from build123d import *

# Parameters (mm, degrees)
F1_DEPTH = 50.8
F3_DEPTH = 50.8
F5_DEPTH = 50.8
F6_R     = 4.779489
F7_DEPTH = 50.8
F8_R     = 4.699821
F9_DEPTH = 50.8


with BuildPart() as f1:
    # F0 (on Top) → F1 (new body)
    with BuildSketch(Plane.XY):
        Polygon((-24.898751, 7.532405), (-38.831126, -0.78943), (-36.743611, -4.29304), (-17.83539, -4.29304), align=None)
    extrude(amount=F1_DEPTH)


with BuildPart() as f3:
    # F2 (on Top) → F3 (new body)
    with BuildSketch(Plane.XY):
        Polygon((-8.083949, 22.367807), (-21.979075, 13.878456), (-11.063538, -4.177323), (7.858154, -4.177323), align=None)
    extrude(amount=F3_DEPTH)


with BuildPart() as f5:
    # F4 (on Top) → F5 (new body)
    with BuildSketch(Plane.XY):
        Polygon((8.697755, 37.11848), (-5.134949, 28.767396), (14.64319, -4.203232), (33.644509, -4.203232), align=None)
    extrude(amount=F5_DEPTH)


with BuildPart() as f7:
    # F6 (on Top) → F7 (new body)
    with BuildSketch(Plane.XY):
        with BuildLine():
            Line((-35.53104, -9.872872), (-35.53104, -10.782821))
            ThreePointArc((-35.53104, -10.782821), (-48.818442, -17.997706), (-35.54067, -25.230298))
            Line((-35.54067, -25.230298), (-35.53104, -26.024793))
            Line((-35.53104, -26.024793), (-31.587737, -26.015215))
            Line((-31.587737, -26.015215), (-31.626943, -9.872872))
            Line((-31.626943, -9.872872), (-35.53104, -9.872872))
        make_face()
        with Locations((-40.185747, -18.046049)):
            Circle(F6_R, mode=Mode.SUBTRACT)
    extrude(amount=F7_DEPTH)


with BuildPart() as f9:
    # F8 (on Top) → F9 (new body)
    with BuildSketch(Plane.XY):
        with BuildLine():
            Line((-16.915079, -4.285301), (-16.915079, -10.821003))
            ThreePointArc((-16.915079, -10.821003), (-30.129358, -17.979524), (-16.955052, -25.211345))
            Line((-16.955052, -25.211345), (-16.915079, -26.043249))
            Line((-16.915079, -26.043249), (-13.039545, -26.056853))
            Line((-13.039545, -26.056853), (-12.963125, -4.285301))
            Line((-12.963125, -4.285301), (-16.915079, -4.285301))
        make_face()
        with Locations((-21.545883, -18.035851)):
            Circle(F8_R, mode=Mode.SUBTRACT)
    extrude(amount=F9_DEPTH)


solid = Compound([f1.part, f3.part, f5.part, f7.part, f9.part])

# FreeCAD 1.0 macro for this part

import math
import FreeCAD as App
import Part
import Sketcher
from FreeCAD import Vector
Q = App.Units.Quantity


def add_polygon(sketch, points):
    """Adds a closed chain of lines whose ends are joined by coincident constraints."""
    first, n = sketch.GeometryCount, len(points)
    for a, b in zip(points, points[1:] + points[:1]):
        sketch.addGeometry(Part.LineSegment(App.Vector(*a, 0), App.Vector(*b, 0)), False)
    for i in range(n):
        sketch.addConstraint(Sketcher.Constraint("Coincident", first + i, 2, first + (i + 1) % n, 1))

doc = App.newDocument("Part")
body = doc.addObject("PartDesign::Body", "Body")

# Sketch on XY plane
sketch1 = body.newObject("Sketcher::SketchObject", "Sketch")
sketch1.AttachmentSupport = (doc.getObject("XY_Plane"), [""])
sketch1.MapMode = "FlatFace"
add_polygon(sketch1, [(-24.9, 7.5), (-38.8, -0.8), (-36.7, -4.3), (-17.8, -4.3)])  # lines 0-3
sketch1.addConstraint(Sketcher.Constraint("Horizontal", 2))
sketch1.addConstraint(Sketcher.Constraint("Perpendicular", 0, 3))
sketch1.addConstraint(Sketcher.Constraint("DistanceX", 2, 1, 2, 2, Q("18.908221 mm")))
sketch1.addConstraint(Sketcher.Constraint("Distance", 3, Q("13.774332 mm")))
sketch1.addConstraint(Sketcher.Constraint("DistanceY", 0, 2, -1, 1, Q("0.78943 mm")))
sketch1.addConstraint(Sketcher.Constraint("DistanceX", 1, 2, -1, 1, Q("36.743611 mm")))
sketch1.addConstraint(Sketcher.Constraint("DistanceY", 1, 2, -1, 1, Q("4.29304 mm")))
sketch1.addConstraint(Sketcher.Constraint("DistanceX", 3, 2, -1, 1, Q("24.898751 mm")))
pad1 = body.newObject("PartDesign::Pad", "Pad")
pad1.Profile = sketch1
pad1.Length = Q("2 in")
body2 = doc.addObject("PartDesign::Body", "Body001")

# Sketch on XY plane
sketch2 = body2.newObject("Sketcher::SketchObject", "Sketch001")
sketch2.AttachmentSupport = (doc.getObject("XY_Plane001"), [""])
sketch2.MapMode = "FlatFace"
add_polygon(sketch2, [(-8, 22), (-22, 14), (-11, -4), (8, -4)])  # lines 0-3
sketch2.addConstraint(Sketcher.Constraint("Horizontal", 2))
sketch2.addConstraint(Sketcher.Constraint("DistanceX", 2, 1, 2, 2, Q("18.921692 mm")))
sketch2.addConstraint(Sketcher.Constraint("Distance", 0, Q("16.283231 mm")))
sketch2.addConstraint(Sketcher.Constraint("Distance", 3, Q("30.964408 mm")))
sketch2.addConstraint(Sketcher.Constraint("DistanceX", 3, 2, -1, 1, Q("8.083949 mm")))
sketch2.addConstraint(Sketcher.Constraint("DistanceY", 1, 2, 0, 2, Q("18.055779 mm")))
sketch2.addConstraint(Sketcher.Constraint("DistanceX", 0, 2, 2, 2, Q("29.837229 mm")))
sketch2.addConstraint(Sketcher.Constraint("DistanceY", -1, 1, 0, 2, Q("13.878456 mm")))
pad2 = body2.newObject("PartDesign::Pad", "Pad001")
pad2.Profile = sketch2
pad2.Length = Q("2 in")
body3 = doc.addObject("PartDesign::Body", "Body002")

# Sketch on XY plane
sketch3 = body3.newObject("Sketcher::SketchObject", "Sketch002")
sketch3.AttachmentSupport = (doc.getObject("XY_Plane002"), [""])
sketch3.MapMode = "FlatFace"
add_polygon(sketch3, [(9, 37), (-5, 29), (15, -4), (34, -4)])  # lines 0-3
sketch3.addConstraint(Sketcher.Constraint("Horizontal", 2))
sketch3.addConstraint(Sketcher.Constraint("Perpendicular", 0, 3))
sketch3.addConstraint(Sketcher.Constraint("DistanceX", 2, 1, 2, 2, Q("19.001319 mm")))
sketch3.addConstraint(Sketcher.Constraint("Distance", 1, Q("38.447849 mm")))
sketch3.addConstraint(Sketcher.Constraint("DistanceX", 0, 2, -1, 1, Q("5.134949 mm")))
sketch3.addConstraint(Sketcher.Constraint("DistanceX", -1, 1, 1, 2, Q("14.64319 mm")))
sketch3.addConstraint(Sketcher.Constraint("DistanceY", -1, 1, 3, 2, Q("37.11848 mm")))
sketch3.addConstraint(Sketcher.Constraint("DistanceY", 1, 2, 3, 2, Q("41.321712 mm")))
pad3 = body3.newObject("PartDesign::Pad", "Pad002")
pad3.Profile = sketch3
pad3.Length = Q("2 in")
body4 = doc.addObject("PartDesign::Body", "Body003")

# Sketch on XY plane
sketch4 = body4.newObject("Sketcher::SketchObject", "Sketch003")
sketch4.AttachmentSupport = (doc.getObject("XY_Plane003"), [""])
sketch4.MapMode = "FlatFace"
sketch4.addGeometry(Part.LineSegment(Vector(-35.5, -9.9, 0), Vector(-35.5, -10.8, 0)), False)
sketch4.addGeometry(Part.ArcOfCircle(Part.Circle(Vector(-40.2, -18, 0), Vector(0, 0, 1), 8.6), math.radians(57), math.radians(303)), False)
sketch4.addGeometry(Part.LineSegment(Vector(-35.5, -25.2, 0), Vector(-35.5, -26, 0)), False)
sketch4.addGeometry(Part.LineSegment(Vector(-35.5, -26, 0), Vector(-31.6, -26, 0)), False)
sketch4.addGeometry(Part.LineSegment(Vector(-31.6, -26, 0), Vector(-31.6, -9.9, 0)), False)
sketch4.addGeometry(Part.LineSegment(Vector(-31.6, -9.9, 0), Vector(-35.5, -9.9, 0)), False)
sketch4.addGeometry(Part.Circle(Vector(-40.2, -18, 0), Vector(0, 0, 1), 4.8), False)
sketch4.addConstraint(Sketcher.Constraint("Coincident", 0, 2, 1, 1))
sketch4.addConstraint(Sketcher.Constraint("Coincident", 1, 2, 2, 1))
sketch4.addConstraint(Sketcher.Constraint("Coincident", 2, 2, 3, 1))
sketch4.addConstraint(Sketcher.Constraint("Coincident", 3, 2, 4, 1))
sketch4.addConstraint(Sketcher.Constraint("Coincident", 4, 2, 5, 1))
sketch4.addConstraint(Sketcher.Constraint("Coincident", 5, 2, 0, 1))
sketch4.addConstraint(Sketcher.Constraint("Vertical", 0))
sketch4.addConstraint(Sketcher.Constraint("Horizontal", 5))
sketch4.addConstraint(Sketcher.Constraint("Perpendicular", 3, 4))
sketch4.addConstraint(Sketcher.Constraint("Vertical", 0, 2, 2, 2))
sketch4.addConstraint(Sketcher.Constraint("Radius", 1, Q("8.605611 mm")))
sketch4.addConstraint(Sketcher.Constraint("Diameter", 6, Q("9.558978 mm")))
sketch4.addConstraint(Sketcher.Constraint("DistanceY", 0, 2, 0, 1, Q("0.909949 mm")))
sketch4.addConstraint(Sketcher.Constraint("DistanceY", 1, 2, -1, 1, Q("25.230298 mm")))
sketch4.addConstraint(Sketcher.Constraint("Distance", 4, Q("16.142391 mm")))
sketch4.addConstraint(Sketcher.Constraint("DistanceX", 5, 2, 5, 1, Q("3.904097 mm")))
sketch4.addConstraint(Sketcher.Constraint("DistanceY", 6, 3, -1, 1, Q("18.046049 mm")))
sketch4.addConstraint(Sketcher.Constraint("DistanceX", 0, 2, -1, 1, Q("35.53104 mm")))
sketch4.addConstraint(Sketcher.Constraint("DistanceY", 0, 2, -1, 1, Q("10.782821 mm")))
sketch4.addConstraint(Sketcher.Constraint("DistanceX", 1, 2, -1, 1, Q("35.54067 mm")))
sketch4.addConstraint(Sketcher.Constraint("DistanceY", 2, 2, 1, 3, Q("8.021351 mm")))
sketch4.addConstraint(Sketcher.Constraint("DistanceX", 6, 3, 3, 2, Q("8.59801 mm")))
pad4 = body4.newObject("PartDesign::Pad", "Pad003")
pad4.Profile = sketch4
pad4.Length = Q("2 in")
body5 = doc.addObject("PartDesign::Body", "Body004")

# Sketch on XY plane
sketch5 = body5.newObject("Sketcher::SketchObject", "Sketch004")
sketch5.AttachmentSupport = (doc.getObject("XY_Plane004"), [""])
sketch5.MapMode = "FlatFace"
sketch5.addGeometry(Part.LineSegment(Vector(-16.9, -4.3, 0), Vector(-16.9, -10.8, 0)), False)
sketch5.addGeometry(Part.ArcOfCircle(Part.Circle(Vector(-21.6, -18, 0), Vector(0, 0, 1), 8.6), math.radians(57), math.radians(303)), False)
sketch5.addGeometry(Part.LineSegment(Vector(-17, -25.2, 0), Vector(-16.9, -26, 0)), False)
sketch5.addGeometry(Part.LineSegment(Vector(-16.9, -26, 0), Vector(-13, -26.1, 0)), False)
sketch5.addGeometry(Part.LineSegment(Vector(-13, -26.1, 0), Vector(-13, -4.3, 0)), False)
sketch5.addGeometry(Part.LineSegment(Vector(-13, -4.3, 0), Vector(-16.9, -4.3, 0)), False)
sketch5.addGeometry(Part.Circle(Vector(-21.5, -18, 0), Vector(0, 0, 1), 4.7), False)
sketch5.addConstraint(Sketcher.Constraint("Coincident", 0, 2, 1, 1))
sketch5.addConstraint(Sketcher.Constraint("Coincident", 1, 2, 2, 1))
sketch5.addConstraint(Sketcher.Constraint("Coincident", 2, 2, 3, 1))
sketch5.addConstraint(Sketcher.Constraint("Coincident", 3, 2, 4, 1))
sketch5.addConstraint(Sketcher.Constraint("Coincident", 4, 2, 5, 1))
sketch5.addConstraint(Sketcher.Constraint("Coincident", 5, 2, 0, 1))
sketch5.addConstraint(Sketcher.Constraint("Vertical", 0))
sketch5.addConstraint(Sketcher.Constraint("Horizontal", 5))
sketch5.addConstraint(Sketcher.Constraint("Perpendicular", 3, 4))
sketch5.addConstraint(Sketcher.Constraint("Vertical", 0, 2, 2, 2))
sketch5.addConstraint(Sketcher.Constraint("Radius", 1, Q("8.559031 mm")))
sketch5.addConstraint(Sketcher.Constraint("Diameter", 6, Q("9.399642 mm")))
sketch5.addConstraint(Sketcher.Constraint("DistanceY", 0, 2, 0, 1, Q("6.535702 mm")))
sketch5.addConstraint(Sketcher.Constraint("DistanceY", 1, 3, -1, 1, Q("18.003298 mm")))
sketch5.addConstraint(Sketcher.Constraint("DistanceY", 4, 2, -1, 1, Q("4.285301 mm")))
sketch5.addConstraint(Sketcher.Constraint("DistanceY", 3, 2, 6, 3, Q("8.021002 mm")))
sketch5.addConstraint(Sketcher.Constraint("DistanceX", 5, 2, 5, 1, Q("3.951954 mm")))
sketch5.addConstraint(Sketcher.Constraint("DistanceX", 1, 3, -1, 1, Q("21.57036 mm")))
sketch5.addConstraint(Sketcher.Constraint("DistanceY", 6, 3, -1, 1, Q("18.035851 mm")))
sketch5.addConstraint(Sketcher.Constraint("DistanceX", 1, 2, -1, 1, Q("16.955052 mm")))
sketch5.addConstraint(Sketcher.Constraint("DistanceY", 2, 2, -1, 1, Q("26.043249 mm")))
sketch5.addConstraint(Sketcher.Constraint("DistanceX", 6, 3, 1, 2, Q("4.590831 mm")))
pad5 = body5.newObject("PartDesign::Pad", "Pad004")
pad5.Profile = sketch5
pad5.Length = Q("2 in")

doc.recompute()
